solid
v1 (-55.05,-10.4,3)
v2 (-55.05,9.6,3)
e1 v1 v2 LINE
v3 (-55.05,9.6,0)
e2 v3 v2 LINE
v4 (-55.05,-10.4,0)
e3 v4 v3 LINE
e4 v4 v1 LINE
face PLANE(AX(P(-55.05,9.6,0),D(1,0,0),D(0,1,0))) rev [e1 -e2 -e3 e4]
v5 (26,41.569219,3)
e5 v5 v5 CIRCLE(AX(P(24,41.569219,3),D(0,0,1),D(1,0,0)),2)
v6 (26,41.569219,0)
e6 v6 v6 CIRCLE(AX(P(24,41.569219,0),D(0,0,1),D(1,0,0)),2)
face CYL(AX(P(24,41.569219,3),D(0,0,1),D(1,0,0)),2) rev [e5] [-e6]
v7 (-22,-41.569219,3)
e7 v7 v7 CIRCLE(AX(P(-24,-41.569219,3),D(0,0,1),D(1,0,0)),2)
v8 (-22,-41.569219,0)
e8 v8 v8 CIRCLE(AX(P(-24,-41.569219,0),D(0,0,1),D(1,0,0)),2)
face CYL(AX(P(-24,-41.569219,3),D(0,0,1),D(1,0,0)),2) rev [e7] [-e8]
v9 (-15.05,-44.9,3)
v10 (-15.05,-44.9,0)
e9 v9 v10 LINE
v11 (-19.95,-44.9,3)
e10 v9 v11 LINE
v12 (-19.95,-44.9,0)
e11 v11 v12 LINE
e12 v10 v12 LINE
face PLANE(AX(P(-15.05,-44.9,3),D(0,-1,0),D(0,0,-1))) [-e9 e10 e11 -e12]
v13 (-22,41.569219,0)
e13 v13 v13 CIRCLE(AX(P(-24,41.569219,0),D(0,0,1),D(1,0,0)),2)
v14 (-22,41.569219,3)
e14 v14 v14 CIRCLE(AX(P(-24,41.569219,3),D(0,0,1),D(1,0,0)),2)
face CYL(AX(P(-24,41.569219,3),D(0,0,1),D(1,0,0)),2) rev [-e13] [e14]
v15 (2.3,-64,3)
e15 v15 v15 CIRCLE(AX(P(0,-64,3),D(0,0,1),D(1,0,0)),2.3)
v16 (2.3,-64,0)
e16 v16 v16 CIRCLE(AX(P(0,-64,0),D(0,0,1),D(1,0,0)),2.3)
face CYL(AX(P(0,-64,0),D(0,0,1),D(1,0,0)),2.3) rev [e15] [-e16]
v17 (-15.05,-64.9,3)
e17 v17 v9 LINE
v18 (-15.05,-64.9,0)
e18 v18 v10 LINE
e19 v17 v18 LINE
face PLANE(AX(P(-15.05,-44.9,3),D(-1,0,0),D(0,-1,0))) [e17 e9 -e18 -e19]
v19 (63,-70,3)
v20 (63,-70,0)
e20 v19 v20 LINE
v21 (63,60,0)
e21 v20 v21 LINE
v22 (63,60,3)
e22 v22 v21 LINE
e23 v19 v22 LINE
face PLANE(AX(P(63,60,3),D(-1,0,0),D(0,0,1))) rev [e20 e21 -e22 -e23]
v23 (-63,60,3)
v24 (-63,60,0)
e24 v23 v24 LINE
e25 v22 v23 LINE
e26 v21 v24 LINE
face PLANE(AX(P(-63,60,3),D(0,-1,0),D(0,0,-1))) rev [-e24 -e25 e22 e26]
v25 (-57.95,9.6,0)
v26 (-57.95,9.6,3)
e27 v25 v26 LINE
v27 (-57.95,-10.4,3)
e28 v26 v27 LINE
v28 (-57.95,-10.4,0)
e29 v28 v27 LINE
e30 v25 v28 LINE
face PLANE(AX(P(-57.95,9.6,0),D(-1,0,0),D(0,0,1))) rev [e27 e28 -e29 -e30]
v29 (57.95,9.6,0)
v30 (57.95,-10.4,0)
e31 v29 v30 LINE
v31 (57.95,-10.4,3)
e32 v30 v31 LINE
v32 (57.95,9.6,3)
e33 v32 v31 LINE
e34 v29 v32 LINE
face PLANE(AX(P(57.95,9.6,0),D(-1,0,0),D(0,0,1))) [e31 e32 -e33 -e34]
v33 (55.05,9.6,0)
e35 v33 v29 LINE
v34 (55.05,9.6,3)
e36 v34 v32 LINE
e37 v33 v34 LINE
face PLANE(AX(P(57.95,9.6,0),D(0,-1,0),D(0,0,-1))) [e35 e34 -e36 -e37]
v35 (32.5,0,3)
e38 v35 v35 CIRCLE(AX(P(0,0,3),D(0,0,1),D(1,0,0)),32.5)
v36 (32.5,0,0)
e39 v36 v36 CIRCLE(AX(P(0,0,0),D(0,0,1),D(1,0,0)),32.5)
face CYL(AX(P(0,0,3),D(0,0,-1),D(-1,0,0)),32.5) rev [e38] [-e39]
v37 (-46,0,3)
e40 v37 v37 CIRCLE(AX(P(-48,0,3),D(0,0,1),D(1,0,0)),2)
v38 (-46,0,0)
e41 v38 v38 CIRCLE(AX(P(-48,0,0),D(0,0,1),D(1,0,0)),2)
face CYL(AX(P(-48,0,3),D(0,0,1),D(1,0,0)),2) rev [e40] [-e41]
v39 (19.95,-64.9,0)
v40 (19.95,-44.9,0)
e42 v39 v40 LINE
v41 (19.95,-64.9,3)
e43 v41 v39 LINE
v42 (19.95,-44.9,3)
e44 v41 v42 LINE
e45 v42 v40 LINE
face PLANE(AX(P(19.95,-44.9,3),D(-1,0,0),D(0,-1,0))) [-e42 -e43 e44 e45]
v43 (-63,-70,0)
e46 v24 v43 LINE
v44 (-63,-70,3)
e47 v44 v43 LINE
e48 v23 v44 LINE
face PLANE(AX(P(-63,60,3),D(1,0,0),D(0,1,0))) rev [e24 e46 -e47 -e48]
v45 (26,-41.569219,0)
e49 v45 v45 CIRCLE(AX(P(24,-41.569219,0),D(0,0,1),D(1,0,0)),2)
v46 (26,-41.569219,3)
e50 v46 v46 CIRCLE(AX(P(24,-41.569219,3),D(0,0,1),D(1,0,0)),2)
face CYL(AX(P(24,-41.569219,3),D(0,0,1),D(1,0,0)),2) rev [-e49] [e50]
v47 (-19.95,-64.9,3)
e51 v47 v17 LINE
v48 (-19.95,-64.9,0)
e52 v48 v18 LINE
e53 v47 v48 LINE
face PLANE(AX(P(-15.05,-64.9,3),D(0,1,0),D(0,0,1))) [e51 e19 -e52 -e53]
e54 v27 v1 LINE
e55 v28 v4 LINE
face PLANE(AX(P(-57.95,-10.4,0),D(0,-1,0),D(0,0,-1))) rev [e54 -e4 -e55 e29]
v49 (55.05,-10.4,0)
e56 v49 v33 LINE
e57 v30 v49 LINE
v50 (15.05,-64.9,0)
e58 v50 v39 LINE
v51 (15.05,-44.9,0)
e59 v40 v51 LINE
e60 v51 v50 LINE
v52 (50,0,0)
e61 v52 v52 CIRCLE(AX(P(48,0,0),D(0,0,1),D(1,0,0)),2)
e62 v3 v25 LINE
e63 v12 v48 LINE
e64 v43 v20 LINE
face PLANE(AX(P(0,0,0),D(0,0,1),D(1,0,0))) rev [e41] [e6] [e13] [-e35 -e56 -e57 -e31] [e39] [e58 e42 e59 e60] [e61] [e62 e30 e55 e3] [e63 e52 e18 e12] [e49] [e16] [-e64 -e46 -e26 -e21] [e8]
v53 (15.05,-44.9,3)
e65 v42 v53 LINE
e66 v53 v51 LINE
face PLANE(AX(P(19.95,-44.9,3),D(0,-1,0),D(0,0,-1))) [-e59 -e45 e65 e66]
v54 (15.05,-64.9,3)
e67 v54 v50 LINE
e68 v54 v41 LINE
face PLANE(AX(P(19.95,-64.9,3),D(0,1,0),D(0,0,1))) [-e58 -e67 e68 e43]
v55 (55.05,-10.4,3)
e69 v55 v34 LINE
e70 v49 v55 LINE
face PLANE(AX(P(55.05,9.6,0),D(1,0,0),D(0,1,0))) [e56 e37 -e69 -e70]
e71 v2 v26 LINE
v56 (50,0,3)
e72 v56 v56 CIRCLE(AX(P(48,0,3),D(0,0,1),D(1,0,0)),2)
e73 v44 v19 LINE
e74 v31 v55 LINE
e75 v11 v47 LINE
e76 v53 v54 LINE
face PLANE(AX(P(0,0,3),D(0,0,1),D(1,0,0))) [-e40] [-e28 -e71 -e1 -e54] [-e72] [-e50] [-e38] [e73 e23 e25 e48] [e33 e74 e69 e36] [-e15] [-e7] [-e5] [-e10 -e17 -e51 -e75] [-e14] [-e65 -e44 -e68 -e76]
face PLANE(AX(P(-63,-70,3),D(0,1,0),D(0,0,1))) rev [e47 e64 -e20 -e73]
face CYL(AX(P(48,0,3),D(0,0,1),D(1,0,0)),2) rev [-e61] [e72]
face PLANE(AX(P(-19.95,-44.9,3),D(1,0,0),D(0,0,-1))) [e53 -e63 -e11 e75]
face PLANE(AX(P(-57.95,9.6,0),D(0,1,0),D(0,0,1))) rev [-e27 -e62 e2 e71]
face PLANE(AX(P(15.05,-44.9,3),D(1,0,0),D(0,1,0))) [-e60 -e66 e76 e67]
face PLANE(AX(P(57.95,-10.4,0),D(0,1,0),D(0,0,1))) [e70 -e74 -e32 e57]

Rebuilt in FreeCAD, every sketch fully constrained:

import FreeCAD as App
import Part
import Sketcher

V = App.Vector
Q = App.Units.Quantity

doc = App.newDocument("Part")
body = doc.addObject("PartDesign::Body", "Body")

sketch1 = body.newObject("Sketcher::SketchObject", "Sketch")
sketch1.AttachmentSupport = (doc.getObject("XY_Plane"), [""])
sketch1.MapMode = "FlatFace"
sketch1.addGeometry(Part.LineSegment(V(-63, 60, 0), V(-63, -70, 0)), False)
sketch1.addGeometry(Part.LineSegment(V(-63, -70, 0), V(63, -70, 0)), False)
sketch1.addGeometry(Part.LineSegment(V(63, -70, 0), V(63, 60, 0)), False)
sketch1.addGeometry(Part.LineSegment(V(63, 60, 0), V(-63, 60, 0)), False)
sketch1.addGeometry(Part.LineSegment(V(-15.05, -64.9, 0), V(-19.95, -64.9, 0)), False)
sketch1.addGeometry(Part.LineSegment(V(-19.95, -64.9, 0), V(-19.95, -44.9, 0)), False)
sketch1.addGeometry(Part.LineSegment(V(-19.95, -44.9, 0), V(-15.05, -44.9, 0)), False)
sketch1.addGeometry(Part.LineSegment(V(-15.05, -44.9, 0), V(-15.05, -64.9, 0)), False)
sketch1.addGeometry(Part.LineSegment(V(19.95, -64.9, 0), V(15.05, -64.9, 0)), False)
sketch1.addGeometry(Part.LineSegment(V(15.05, -64.9, 0), V(15.05, -44.9, 0)), False)
sketch1.addGeometry(Part.LineSegment(V(15.05, -44.9, 0), V(19.95, -44.9, 0)), False)
sketch1.addGeometry(Part.LineSegment(V(19.95, -44.9, 0), V(19.95, -64.9, 0)), False)
sketch1.addGeometry(Part.Circle(V(0, 0, 0), V(0, 0, 1), 32.5), False)
sketch1.addConstraint(Sketcher.Constraint("Coincident", 0, 2, 1, 1))
sketch1.addConstraint(Sketcher.Constraint("Coincident", 1, 2, 2, 1))
sketch1.addConstraint(Sketcher.Constraint("Coincident", 2, 2, 3, 1))
sketch1.addConstraint(Sketcher.Constraint("Coincident", 3, 2, 0, 1))
sketch1.addConstraint(Sketcher.Constraint("Coincident", 4, 2, 5, 1))
sketch1.addConstraint(Sketcher.Constraint("Coincident", 5, 2, 6, 1))
sketch1.addConstraint(Sketcher.Constraint("Coincident", 6, 2, 7, 1))
sketch1.addConstraint(Sketcher.Constraint("Coincident", 7, 2, 4, 1))
sketch1.addConstraint(Sketcher.Constraint("Coincident", 8, 2, 9, 1))
sketch1.addConstraint(Sketcher.Constraint("Coincident", 9, 2, 10, 1))
sketch1.addConstraint(Sketcher.Constraint("Coincident", 10, 2, 11, 1))
sketch1.addConstraint(Sketcher.Constraint("Coincident", 11, 2, 8, 1))
sketch1.addConstraint(Sketcher.Constraint("Vertical", 0))
sketch1.addConstraint(Sketcher.Constraint("Horizontal", 1))
sketch1.addConstraint(Sketcher.Constraint("Vertical", 2))
sketch1.addConstraint(Sketcher.Constraint("Horizontal", 3))
sketch1.addConstraint(Sketcher.Constraint("Horizontal", 4))
sketch1.addConstraint(Sketcher.Constraint("Vertical", 5))
sketch1.addConstraint(Sketcher.Constraint("Horizontal", 6))
sketch1.addConstraint(Sketcher.Constraint("Vertical", 7))
sketch1.addConstraint(Sketcher.Constraint("Horizontal", 8))
sketch1.addConstraint(Sketcher.Constraint("Vertical", 9))
sketch1.addConstraint(Sketcher.Constraint("Horizontal", 10))
sketch1.addConstraint(Sketcher.Constraint("Vertical", 11))
sketch1.addConstraint(Sketcher.Constraint("Coincident", 12, 3, -1, 1))
sketch1.addConstraint(Sketcher.Constraint("Symmetric", 7, 2, 8, 2, -2))
sketch1.addConstraint(Sketcher.Constraint("Symmetric", 5, 2, 10, 2, -2))
sketch1.addConstraint(Sketcher.Constraint("Diameter", 12, Q("65 mm")))
sketch1.addConstraint(Sketcher.Constraint("DistanceX", 1, 1, 1, 2, Q("126 mm")))
sketch1.addConstraint(Sketcher.Constraint("DistanceY", 0, 2, 0, 1, Q("130 mm")))
sketch1.addConstraint(Sketcher.Constraint("DistanceY", 5, 1, 5, 2, Q("20 mm")))
sketch1.addConstraint(Sketcher.Constraint("DistanceX", 4, 2, 4, 1, Q("4.9 mm")))
sketch1.addConstraint(Sketcher.Constraint("DistanceX", 0, 2, -1, 1, Q("63 mm")))
sketch1.addConstraint(Sketcher.Constraint("DistanceY", 0, 2, -1, 1, Q("70 mm")))
sketch1.addConstraint(Sketcher.Constraint("DistanceX", 4, 2, 8, 2, Q("35 mm")))
sketch1.addConstraint(Sketcher.Constraint("DistanceY", 4, 2, -1, 1, Q("64.9 mm")))
pad1 = body.newObject("PartDesign::Pad", "Pad")
pad1.Profile = sketch1
pad1.Length = 3

sketch2 = body.newObject("Sketcher::SketchObject", "Sketch001")
sketch2.AttachmentSupport = (doc.getObject("XY_Plane"), [""])
sketch2.MapMode = "FlatFace"
sketch2.AttachmentOffset = App.Placement(V(0, 0, 3), App.Rotation())
sketch2.addGeometry(Part.LineSegment(V(-57.95, 9.6, 0), V(-57.95, -10.4, 0)), False)
sketch2.addGeometry(Part.LineSegment(V(-57.95, -10.4, 0), V(-55.05, -10.4, 0)), False)
sketch2.addGeometry(Part.LineSegment(V(-55.05, -10.4, 0), V(-55.05, 9.6, 0)), False)
sketch2.addGeometry(Part.LineSegment(V(-55.05, 9.6, 0), V(-57.95, 9.6, 0)), False)
sketch2.addConstraint(Sketcher.Constraint("Coincident", 0, 2, 1, 1))
sketch2.addConstraint(Sketcher.Constraint("Coincident", 1, 2, 2, 1))
sketch2.addConstraint(Sketcher.Constraint("Coincident", 2, 2, 3, 1))
sketch2.addConstraint(Sketcher.Constraint("Coincident", 3, 2, 0, 1))
sketch2.addConstraint(Sketcher.Constraint("Vertical", 0))
sketch2.addConstraint(Sketcher.Constraint("Horizontal", 1))
sketch2.addConstraint(Sketcher.Constraint("Vertical", 2))
sketch2.addConstraint(Sketcher.Constraint("Horizontal", 3))
sketch2.addConstraint(Sketcher.Constraint("DistanceY", 0, 2, 0, 1, Q("20 mm")))
sketch2.addConstraint(Sketcher.Constraint("DistanceX", 1, 1, 1, 2, Q("2.9 mm")))
sketch2.addConstraint(Sketcher.Constraint("DistanceY", 0, 2, -1, 1, Q("10.4 mm")))
sketch2.addConstraint(Sketcher.Constraint("DistanceX", 0, 2, -1, 1, Q("57.95 mm")))
pocket1 = body.newObject("PartDesign::Pocket", "Pocket")
pocket1.Profile = sketch2
pocket1.Length = 3
doc.recompute()

mirrored = body.newObject("PartDesign::Mirrored", "Mirrored")
mirrored.Originals = [pocket1]
mirrored.MirrorPlane = (doc.getObject("YZ_Plane"), [""])
body.Tip = mirrored

sketch3 = body.newObject("Sketcher::SketchObject", "Sketch002")
sketch3.AttachmentSupport = (doc.getObject("XY_Plane"), [""])
sketch3.MapMode = "FlatFace"
sketch3.AttachmentOffset = App.Placement(V(0, 0, 3), App.Rotation())
sketch3.addGeometry(Part.Circle(V(-24, 41.569219, 0), V(0, 0, 1), 2), False)
sketch3.addGeometry(Part.Circle(V(48, 0, 0), V(0, 0, 1), 2), False)
sketch3.addGeometry(Part.Circle(V(24, 41.569219, 0), V(0, 0, 1), 2), False)
sketch3.addGeometry(Part.Circle(V(24, -41.569219, 0), V(0, 0, 1), 2), False)
sketch3.addGeometry(Part.Circle(V(-24, -41.569219, 0), V(0, 0, 1), 2), False)
sketch3.addGeometry(Part.Circle(V(-48, 0, 0), V(0, 0, 1), 2), False)
sketch3.addConstraint(Sketcher.Constraint("Equal", 0, 1))
sketch3.addConstraint(Sketcher.Constraint("Equal", 1, 2))
sketch3.addConstraint(Sketcher.Constraint("Equal", 2, 3))
sketch3.addConstraint(Sketcher.Constraint("Equal", 3, 4))
sketch3.addConstraint(Sketcher.Constraint("Equal", 4, 5))
sketch3.addConstraint(Sketcher.Constraint("Symmetric", 0, 3, 3, 3, -1, 1))
sketch3.addConstraint(Sketcher.Constraint("Symmetric", 2, 3, 4, 3, -1, 1))
sketch3.addConstraint(Sketcher.Constraint("Symmetric", 1, 3, 5, 3, -1, 1))
sketch3.addConstraint(Sketcher.Constraint("Symmetric", 0, 3, 2, 3, -2))
sketch3.addConstraint(Sketcher.Constraint("PointOnObject", 1, 3, -1))
sketch3.addConstraint(Sketcher.Constraint("Diameter", 0, Q("4 mm")))
sketch3.addConstraint(Sketcher.Constraint("DistanceX", 0, 3, -1, 1, Q("24 mm")))
sketch3.addConstraint(Sketcher.Constraint("DistanceX", -1, 1, 1, 3, Q("48 mm")))
sketch3.addConstraint(Sketcher.Constraint("DistanceY", -1, 1, 0, 3, Q("41.569219 mm")))
doc.recompute()
hole = body.newObject("PartDesign::Hole", "Hole")
hole.Profile = sketch3
hole.ThreadType = "None"
hole.Diameter = 4
hole.DepthType = "Dimension"
hole.Depth = 10
hole.DrillPoint = "Angled"
hole.DrillPointAngle = 118

sketch4 = body.newObject("Sketcher::SketchObject", "Sketch003")
sketch4.AttachmentSupport = (doc.getObject("XY_Plane"), [""])
sketch4.MapMode = "FlatFace"
sketch4.AttachmentOffset = App.Placement(V(0, 0, 3), App.Rotation())
sketch4.addGeometry(Part.Circle(V(0, -64, 0), V(0, 0, 1), 2.3), False)
sketch4.addConstraint(Sketcher.Constraint("PointOnObject", 0, 3, -2))
sketch4.addConstraint(Sketcher.Constraint("Diameter", 0, Q("4.6 mm")))
sketch4.addConstraint(Sketcher.Constraint("DistanceY", 0, 3, -1, 1, Q("64 mm")))
pocket2 = body.newObject("PartDesign::Pocket", "Pocket001")
pocket2.Profile = sketch4
pocket2.Length = 3

doc.recompute()
